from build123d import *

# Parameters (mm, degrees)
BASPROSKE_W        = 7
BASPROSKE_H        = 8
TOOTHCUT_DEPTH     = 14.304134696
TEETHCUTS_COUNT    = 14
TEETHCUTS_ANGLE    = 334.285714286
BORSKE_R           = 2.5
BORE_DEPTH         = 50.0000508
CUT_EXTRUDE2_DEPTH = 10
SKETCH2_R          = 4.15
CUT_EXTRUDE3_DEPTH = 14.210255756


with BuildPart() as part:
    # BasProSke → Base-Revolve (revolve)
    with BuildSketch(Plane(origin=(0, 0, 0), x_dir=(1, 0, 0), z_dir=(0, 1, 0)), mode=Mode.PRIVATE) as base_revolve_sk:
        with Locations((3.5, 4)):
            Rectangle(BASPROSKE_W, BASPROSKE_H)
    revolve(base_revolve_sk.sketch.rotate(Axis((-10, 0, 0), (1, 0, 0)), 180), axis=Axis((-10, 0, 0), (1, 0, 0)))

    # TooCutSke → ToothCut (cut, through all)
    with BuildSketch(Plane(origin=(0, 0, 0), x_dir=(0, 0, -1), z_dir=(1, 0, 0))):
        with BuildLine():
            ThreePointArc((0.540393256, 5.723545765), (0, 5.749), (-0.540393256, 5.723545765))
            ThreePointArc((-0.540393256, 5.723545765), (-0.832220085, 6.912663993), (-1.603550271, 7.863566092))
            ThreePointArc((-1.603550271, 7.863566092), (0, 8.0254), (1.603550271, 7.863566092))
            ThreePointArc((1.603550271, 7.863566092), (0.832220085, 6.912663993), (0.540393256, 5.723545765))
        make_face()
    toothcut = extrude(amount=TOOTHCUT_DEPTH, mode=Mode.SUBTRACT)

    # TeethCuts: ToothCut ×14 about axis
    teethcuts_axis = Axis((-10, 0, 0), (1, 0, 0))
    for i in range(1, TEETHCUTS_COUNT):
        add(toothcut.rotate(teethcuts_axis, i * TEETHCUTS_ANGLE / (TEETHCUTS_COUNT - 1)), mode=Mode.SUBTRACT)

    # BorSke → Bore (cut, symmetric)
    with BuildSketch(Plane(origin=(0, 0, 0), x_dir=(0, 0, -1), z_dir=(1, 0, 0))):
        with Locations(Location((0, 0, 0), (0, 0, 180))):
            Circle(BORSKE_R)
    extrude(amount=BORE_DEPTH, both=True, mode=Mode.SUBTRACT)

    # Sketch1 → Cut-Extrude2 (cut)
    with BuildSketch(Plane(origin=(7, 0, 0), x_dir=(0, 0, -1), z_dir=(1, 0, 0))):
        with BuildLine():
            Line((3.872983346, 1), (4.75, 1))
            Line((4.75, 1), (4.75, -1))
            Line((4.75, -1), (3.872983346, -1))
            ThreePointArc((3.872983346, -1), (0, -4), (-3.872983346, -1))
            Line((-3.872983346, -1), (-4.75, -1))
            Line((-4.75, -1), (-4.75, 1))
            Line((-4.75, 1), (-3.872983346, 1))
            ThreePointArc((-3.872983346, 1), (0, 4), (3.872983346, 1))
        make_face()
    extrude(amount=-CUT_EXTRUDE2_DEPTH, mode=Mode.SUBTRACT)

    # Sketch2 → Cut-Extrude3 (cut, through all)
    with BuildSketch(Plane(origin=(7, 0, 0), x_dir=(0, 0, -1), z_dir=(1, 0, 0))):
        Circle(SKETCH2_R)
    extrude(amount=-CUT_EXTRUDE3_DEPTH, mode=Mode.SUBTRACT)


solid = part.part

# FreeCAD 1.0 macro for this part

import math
import FreeCAD as App
import Part
import Sketcher

V = App.Vector
Q = App.Units.Quantity

doc = App.newDocument("Part")
body = doc.addObject("PartDesign::Body", "Body")

# Sketch on XZ plane
sketch1 = doc.addObject("Sketcher::SketchObject", "Sketch")
body.addObject(sketch1)
sketch1.AttachmentSupport = (doc.XZ_Plane, [""])
sketch1.MapMode = "FlatFace"
sketch1.addGeometry([
    Part.LineSegment(V(0, -8, 0), V(0, 0, 0)),
    Part.LineSegment(V(0, 0, 0), V(7, 0, 0)),
    Part.LineSegment(V(7, 0, 0), V(7, -8, 0)),
    Part.LineSegment(V(7, -8, 0), V(0, -8, 0)),
], False)
sketch1.addConstraint([
    Sketcher.Constraint("Coincident", 0, 2, 1, 1),
    Sketcher.Constraint("Coincident", 1, 2, 2, 1),
    Sketcher.Constraint("Coincident", 2, 2, 3, 1),
    Sketcher.Constraint("Coincident", 3, 2, 0, 1),
    Sketcher.Constraint("Vertical", 0),
    Sketcher.Constraint("Horizontal", 1),
    Sketcher.Constraint("Vertical", 2),
    Sketcher.Constraint("Horizontal", 3),
    Sketcher.Constraint("Coincident", 0, 2, -1, 1),
    Sketcher.Constraint("DistanceX", 1, 1, 1, 2, Q("7 mm")),
    Sketcher.Constraint("DistanceY", 0, 1, 0, 2, Q("8 mm")),
])
revolution = doc.addObject("PartDesign::Revolution", "Revolution")
body.addObject(revolution)
revolution.Profile = sketch1
revolution.ReferenceAxis = (sketch1, ["H_Axis"])
revolution.Angle = 360

# Sketch on YZ plane
sketch2 = doc.addObject("Sketcher::SketchObject", "Sketch001")
body.addObject(sketch2)
sketch2.AttachmentSupport = (doc.YZ_Plane, [""])
sketch2.MapMode = "FlatFace"
sketch2.addGeometry([
    Part.ArcOfCircle(Part.Circle(V(0, 0, 0), V(0, 0, 1), 5.7), math.radians(-5.39), math.radians(5.39)),
    Part.ArcOfCircle(Part.Circle(V(5.7, -3.3, 0), V(0, 0, 1), 2.8), math.radians(38), math.radians(89)),
    Part.ArcOfCircle(Part.Circle(V(0, 0, 0), V(0, 0, 1), 8), math.radians(-12), math.radians(12)),
    Part.ArcOfCircle(Part.Circle(V(5.7, 3.3, 0), V(0, 0, 1), 2.8), math.radians(-89), math.radians(-38)),
], False)
sketch2.addConstraint([
    Sketcher.Constraint("Coincident", 0, 1, 1, 2),
    Sketcher.Constraint("Coincident", 1, 1, 2, 1),
    Sketcher.Constraint("Coincident", 2, 2, 3, 2),
    Sketcher.Constraint("Coincident", 3, 1, 0, 2),
    Sketcher.Constraint("Coincident", 0, 3, -1, 1),
    Sketcher.Constraint("Coincident", 2, 3, -1, 1),
    Sketcher.Constraint("Equal", 1, 3),
    Sketcher.Constraint("Symmetric", 1, 3, 3, 3, -1),
    Sketcher.Constraint("Radius", 1, Q("2.8 mm")),
    Sketcher.Constraint("Radius", 0, Q("5.749 mm")),
    Sketcher.Constraint("Radius", 2, Q("8.0254 mm")),
    Sketcher.Constraint("DistanceY", 1, 1, 2, 2, Q("3.207101 mm")),
    Sketcher.Constraint("DistanceY", 1, 3, -1, 1, Q("3.33982 mm")),
])
pocket1 = doc.addObject("PartDesign::Pocket", "Pocket")
body.addObject(pocket1)
pocket1.Profile = sketch2
pocket1.Type = "ThroughAll"
pocket1.Reversed = True
doc.recompute()

polarpattern = doc.addObject("PartDesign::PolarPattern", "PolarPattern")
body.addObject(polarpattern)
polarpattern.Originals = [pocket1]
polarpattern.Axis = (doc.X_Axis, [""])
polarpattern.Angle = 360
polarpattern.Occurrences = 14
body.Tip = polarpattern

# Sketch on YZ plane
sketch3 = doc.addObject("Sketcher::SketchObject", "Sketch002")
body.addObject(sketch3)
sketch3.AttachmentSupport = (doc.YZ_Plane, [""])
sketch3.MapMode = "FlatFace"
sketch3.addGeometry(Part.Circle(V(0, 0, 0), V(0, 0, 1), 2.5), False)
sketch3.addConstraint([
    Sketcher.Constraint("Coincident", 0, 3, -1, 1),
    Sketcher.Constraint("Diameter", 0, Q("5 mm")),
])
pocket2 = doc.addObject("PartDesign::Pocket", "Pocket001")
body.addObject(pocket2)
pocket2.Profile = sketch3
pocket2.Length = 100.000102
pocket2.Midplane = True

# Sketch on YZ plane
sketch4 = doc.addObject("Sketcher::SketchObject", "Sketch003")
body.addObject(sketch4)
sketch4.AttachmentSupport = (doc.YZ_Plane, [""])
sketch4.MapMode = "FlatFace"
sketch4.AttachmentOffset = App.Placement(V(0, 0, 7), App.Rotation())
sketch4.addGeometry([
    Part.LineSegment(V(1, -4.8, 0), V(1, -3.9, 0)),  # 0
    Part.ArcOfCircle(Part.Circle(V(0, 0, 0), V(0, 0, 1), 4), math.radians(-76), math.radians(76)),  # 1
    Part.LineSegment(V(1, 3.9, 0), V(1, 4.8, 0)),  # 2
    Part.LineSegment(V(1, 4.8, 0), V(-1, 4.8, 0)),  # 3
    Part.LineSegment(V(-1, 4.8, 0), V(-1, 3.9, 0)),  # 4
    Part.ArcOfCircle(Part.Circle(V(0, 0, 0), V(0, 0, 1), 4), math.radians(104), math.radians(256)),  # 5
    Part.LineSegment(V(-1, -3.9, 0), V(-1, -4.8, 0)),  # 6
    Part.LineSegment(V(-1, -4.8, 0), V(1, -4.8, 0)),  # 7
], False)
sketch4.addConstraint([
    Sketcher.Constraint("Coincident", 0, 2, 1, 1),
    Sketcher.Constraint("Coincident", 1, 2, 2, 1),
    Sketcher.Constraint("Coincident", 2, 2, 3, 1),
    Sketcher.Constraint("Coincident", 3, 2, 4, 1),
    Sketcher.Constraint("Coincident", 4, 2, 5, 1),
    Sketcher.Constraint("Coincident", 5, 2, 6, 1),
    Sketcher.Constraint("Coincident", 6, 2, 7, 1),
    Sketcher.Constraint("Coincident", 7, 2, 0, 1),
    Sketcher.Constraint("Vertical", 0),
    Sketcher.Constraint("Vertical", 2),
    Sketcher.Constraint("Horizontal", 3),
    Sketcher.Constraint("Vertical", 4),
    Sketcher.Constraint("Vertical", 6),
    Sketcher.Constraint("Horizontal", 7),
    Sketcher.Constraint("Coincident", 1, 3, -1, 1),
    Sketcher.Constraint("Coincident", 5, 3, -1, 1),
    Sketcher.Constraint("Equal", 1, 5),
    Sketcher.Constraint("Symmetric", 2, 2, 6, 2, -1, 1),
    Sketcher.Constraint("Horizontal", 1, 2, 4, 2),
    Sketcher.Constraint("Horizontal", 0, 2, 5, 2),
    Sketcher.Constraint("Radius", 1, Q("4 mm")),
    Sketcher.Constraint("DistanceX", 3, 2, 3, 1, Q("2 mm")),
    Sketcher.Constraint("DistanceY", -1, 1, 2, 2, Q("4.75 mm")),
])
pocket3 = doc.addObject("PartDesign::Pocket", "Pocket002")
body.addObject(pocket3)
pocket3.Profile = sketch4
pocket3.Length = 10

# Sketch on YZ plane
sketch5 = doc.addObject("Sketcher::SketchObject", "Sketch004")
body.addObject(sketch5)
sketch5.AttachmentSupport = (doc.YZ_Plane, [""])
sketch5.MapMode = "FlatFace"
sketch5.AttachmentOffset = App.Placement(V(0, 0, 7), App.Rotation())
sketch5.addGeometry(Part.Circle(V(0, 0, 0), V(0, 0, 1), 4.2), False)
sketch5.addConstraint([
    Sketcher.Constraint("Coincident", 0, 3, -1, 1),
    Sketcher.Constraint("Diameter", 0, Q("8.3 mm")),
])
pocket4 = doc.addObject("PartDesign::Pocket", "Pocket003")
body.addObject(pocket4)
pocket4.Profile = sketch5
pocket4.Type = "ThroughAll"

doc.recompute()
